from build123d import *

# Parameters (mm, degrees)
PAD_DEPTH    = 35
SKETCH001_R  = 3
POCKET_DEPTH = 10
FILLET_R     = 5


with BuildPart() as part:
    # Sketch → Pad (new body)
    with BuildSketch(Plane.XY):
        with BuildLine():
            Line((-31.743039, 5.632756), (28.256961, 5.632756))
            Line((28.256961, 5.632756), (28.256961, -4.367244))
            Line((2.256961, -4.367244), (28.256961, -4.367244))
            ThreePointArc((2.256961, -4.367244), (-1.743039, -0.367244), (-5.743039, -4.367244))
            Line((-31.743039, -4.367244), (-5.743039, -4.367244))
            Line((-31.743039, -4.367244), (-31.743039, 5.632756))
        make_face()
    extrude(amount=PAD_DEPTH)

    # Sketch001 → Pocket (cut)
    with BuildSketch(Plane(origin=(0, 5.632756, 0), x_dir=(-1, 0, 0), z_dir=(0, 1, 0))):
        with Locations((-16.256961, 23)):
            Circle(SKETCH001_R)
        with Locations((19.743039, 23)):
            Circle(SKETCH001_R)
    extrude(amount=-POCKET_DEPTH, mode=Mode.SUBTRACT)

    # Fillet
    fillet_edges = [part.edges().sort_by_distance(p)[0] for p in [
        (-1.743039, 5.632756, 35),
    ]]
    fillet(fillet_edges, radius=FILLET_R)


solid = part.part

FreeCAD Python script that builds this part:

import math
import FreeCAD as App
import Part
import Sketcher
Q = App.Units.Quantity


def edges_at(feature, points):
    """Names of the edges that pass closest to the given points."""
    edges = feature.Shape.Edges
    near = lambda p: min(range(len(edges)), key=lambda i: edges[i].distToShape(Part.Vertex(*p))[0])
    return sorted({f"Edge{near(p) + 1}" for p in points})

doc = App.newDocument("Part")
params = doc.addObject("Spreadsheet::Sheet", "Params")
for row, (alias, value) in enumerate([
    ("sketch1_radius", "4 mm"),
    ("sketch1_width", "60 mm"),
    ("sketch1_height", "10 mm"),
    ("pad1_length", "35 mm"),
    ("sketch2_diameter", "6 mm"),
    ("pocket1_length", "10 mm"),
    ("fillet_radius", "5 mm"),
], start=1):
    params.set(f"A{row}", alias)
    params.set(f"B{row}", "=" + value)
    params.setAlias(f"B{row}", alias)

body = doc.addObject("PartDesign::Body", "Body")

sketch1 = body.newObject("Sketcher::SketchObject", "Sketch")
sketch1.AttachmentSupport = (doc.getObject("XY_Plane"), [""])
sketch1.MapMode = "FlatFace"
sketch1.addGeometry([
    Part.LineSegment(App.Vector(28.256961, 5.632756, 0), App.Vector(-31.743039, 5.632756, 0)),
    Part.LineSegment(App.Vector(-31.743039, 5.632756, 0), App.Vector(-31.743039, -4.367244, 0)),
    Part.LineSegment(App.Vector(-31.743039, -4.367244, 0), App.Vector(-5.743039, -4.367244, 0)),
    Part.ArcOfCircle(Part.Circle(App.Vector(-1.743039, -4.367244, 0), App.Vector(0, 0, 1), 4), math.radians(0), math.radians(180)),
    Part.LineSegment(App.Vector(2.256961, -4.367244, 0), App.Vector(28.256961, -4.367244, 0)),
    Part.LineSegment(App.Vector(28.256961, -4.367244, 0), App.Vector(28.256961, 5.632756, 0)),
], False)
sketch1.addConstraint([
    Sketcher.Constraint("Coincident", 0, 2, 1, 1),
    Sketcher.Constraint("Coincident", 1, 2, 2, 1),
    Sketcher.Constraint("Coincident", 2, 2, 3, 2),
    Sketcher.Constraint("Coincident", 3, 1, 4, 1),
    Sketcher.Constraint("Coincident", 4, 2, 5, 1),
    Sketcher.Constraint("Coincident", 5, 2, 0, 1),
    Sketcher.Constraint("Horizontal", 0),
    Sketcher.Constraint("Vertical", 1),
    Sketcher.Constraint("Horizontal", 2),
    Sketcher.Constraint("Horizontal", 4),
    Sketcher.Constraint("Vertical", 5),
    Sketcher.Constraint("Horizontal", 3, 3, 1, 2),
    Sketcher.Constraint("Horizontal", 2, 2, 3, 1),
    Sketcher.Constraint("Equal", 2, 4),
    Sketcher.Constraint("Radius", 3, Q("4 mm")),
    Sketcher.Constraint("DistanceX", 0, 2, 0, 1, Q("60 mm")),
    Sketcher.Constraint("DistanceY", 1, 2, 1, 1, Q("10 mm")),
    Sketcher.Constraint("DistanceX", 3, 3, -1, 1, Q("1.743039 mm")),
    Sketcher.Constraint("DistanceY", 3, 3, -1, 1, Q("4.367244 mm")),
])
sketch1.setExpression("Constraints[14]", "Params.sketch1_radius")
sketch1.setExpression("Constraints[15]", "Params.sketch1_width")
sketch1.setExpression("Constraints[16]", "Params.sketch1_height")
pad1 = body.newObject("PartDesign::Pad", "Pad")
pad1.Profile = sketch1
pad1.setExpression("Length", "Params.pad1_length")

sketch2 = body.newObject("Sketcher::SketchObject", "Sketch001")
sketch2.AttachmentSupport = (doc.getObject("XZ_Plane"), [""])
sketch2.MapMode = "FlatFace"
sketch2.AttachmentOffset = App.Placement(App.Vector(0, 0, -5.632756), App.Rotation())
sketch2.addGeometry([
    Part.Circle(App.Vector(16.256961, 23, 0), App.Vector(0, 0, 1), 3),
    Part.Circle(App.Vector(-19.743039, 23, 0), App.Vector(0, 0, 1), 3),
], False)
sketch2.addConstraint([
    Sketcher.Constraint("Equal", 0, 1),
    Sketcher.Constraint("Horizontal", 0, 3, 1, 3),
    Sketcher.Constraint("Diameter", 0, Q("6 mm")),
    Sketcher.Constraint("DistanceY", -1, 1, 0, 3, Q("23 mm")),
    Sketcher.Constraint("DistanceX", 1, 3, 0, 3, Q("36 mm")),
    Sketcher.Constraint("DistanceX", -1, 1, 0, 3, Q("16.256961 mm")),
])
sketch2.setExpression("Constraints[2]", "Params.sketch2_diameter")
pocket1 = body.newObject("PartDesign::Pocket", "Pocket")
pocket1.Profile = sketch2
pocket1.setExpression("Length", "Params.pocket1_length")
pocket1.Reversed = True
doc.recompute()

fillet = body.newObject("PartDesign::Fillet", "Fillet")
fillet.Base = (pocket1, edges_at(pocket1, [(-1.743, 5.633, 35)]))
fillet.setExpression("Radius", "Params.fillet_radius")

doc.recompute()
